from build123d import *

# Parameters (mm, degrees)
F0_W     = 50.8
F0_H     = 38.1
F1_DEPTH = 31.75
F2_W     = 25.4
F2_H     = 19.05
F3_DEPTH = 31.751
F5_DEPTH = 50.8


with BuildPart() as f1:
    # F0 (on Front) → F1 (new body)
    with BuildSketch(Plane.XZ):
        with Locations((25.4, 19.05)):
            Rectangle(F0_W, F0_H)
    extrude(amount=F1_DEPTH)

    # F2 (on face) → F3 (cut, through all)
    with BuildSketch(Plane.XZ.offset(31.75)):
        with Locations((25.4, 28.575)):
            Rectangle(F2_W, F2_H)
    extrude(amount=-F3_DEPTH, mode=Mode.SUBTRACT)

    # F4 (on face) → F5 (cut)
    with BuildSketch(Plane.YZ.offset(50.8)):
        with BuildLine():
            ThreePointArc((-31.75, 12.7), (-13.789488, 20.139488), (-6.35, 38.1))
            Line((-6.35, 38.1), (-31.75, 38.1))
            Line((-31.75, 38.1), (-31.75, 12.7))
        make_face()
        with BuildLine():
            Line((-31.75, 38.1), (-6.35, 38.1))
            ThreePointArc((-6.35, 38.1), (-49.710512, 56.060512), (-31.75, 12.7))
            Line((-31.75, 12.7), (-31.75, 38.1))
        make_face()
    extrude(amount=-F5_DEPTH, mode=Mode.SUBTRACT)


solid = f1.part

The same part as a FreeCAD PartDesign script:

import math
import FreeCAD as App
import Part
import Sketcher

V = App.Vector
Q = App.Units.Quantity


def add_polygon(sketch, points):
    """Adds a closed chain of lines whose ends are joined by coincident constraints."""
    first, n = sketch.GeometryCount, len(points)
    for a, b in zip(points, points[1:] + points[:1]):
        sketch.addGeometry(Part.LineSegment(App.Vector(*a, 0), App.Vector(*b, 0)), False)
    for i in range(n):
        sketch.addConstraint(Sketcher.Constraint("Coincident", first + i, 2, first + (i + 1) % n, 1))

doc = App.newDocument("Part")
body = doc.addObject("PartDesign::Body", "Body")

# Sketch on XZ plane
sketch1 = body.newObject("Sketcher::SketchObject", "Sketch")
sketch1.AttachmentSupport = (doc.getObject("XZ_Plane"), [""])
sketch1.MapMode = "FlatFace"
add_polygon(sketch1, [(0, 38.1), (0, 0), (50.8, 0), (50.8, 38.1)])  # lines 0-3
sketch1.addConstraint([
    Sketcher.Constraint("Vertical", 0),
    Sketcher.Constraint("Horizontal", 1),
    Sketcher.Constraint("Vertical", 2),
    Sketcher.Constraint("Horizontal", 3),
    Sketcher.Constraint("Coincident", 0, 2, -1, 1),
    Sketcher.Constraint("DistanceX", 1, 1, 1, 2, Q("2 in")),
    Sketcher.Constraint("DistanceY", 0, 2, 0, 1, Q("1.5 in")),
])
pad1 = body.newObject("PartDesign::Pad", "Pad")
pad1.Profile = sketch1
pad1.Length = Q("1.25 in")

# Sketch on XZ plane
sketch2 = body.newObject("Sketcher::SketchObject", "Sketch001")
sketch2.AttachmentSupport = (doc.getObject("XZ_Plane"), [""])
sketch2.MapMode = "FlatFace"
sketch2.AttachmentOffset = App.Placement(V(0, 0, 1.25 * 25.4), App.Rotation())
add_polygon(sketch2, [(12.7, 38.1), (12.7, 19.05), (38.1, 19.05), (38.1, 38.1)])  # lines 0-3
sketch2.addConstraint([
    Sketcher.Constraint("Vertical", 0),
    Sketcher.Constraint("Horizontal", 1),
    Sketcher.Constraint("Vertical", 2),
    Sketcher.Constraint("Horizontal", 3),
    Sketcher.Constraint("DistanceX", 1, 1, 1, 2, Q("1 in")),
    Sketcher.Constraint("DistanceY", 0, 2, 0, 1, Q("0.75 in")),
    Sketcher.Constraint("DistanceX", -1, 1, 0, 2, Q("0.5 in")),
    Sketcher.Constraint("DistanceY", -1, 1, 2, 2, Q("1.5 in")),
])
pocket1 = body.newObject("PartDesign::Pocket", "Pocket")
pocket1.Profile = sketch2
pocket1.Type = "ThroughAll"

# Sketch on YZ plane
sketch3 = body.newObject("Sketcher::SketchObject", "Sketch002")
sketch3.AttachmentSupport = (doc.getObject("YZ_Plane"), [""])
sketch3.MapMode = "FlatFace"
sketch3.AttachmentOffset = App.Placement(V(0, 0, 2 * 25.4), App.Rotation())
sketch3.addGeometry([
    Part.ArcOfCircle(Part.Circle(V(-31.750001, 38.100001, 0), V(0, 0, 1), 25.400001), math.radians(-89.999998), math.radians(-0.000002)),
    Part.ArcOfCircle(Part.Circle(V(-31.75, 38.1, 0), V(0, 0, 1), 25.4), math.radians(0), math.radians(270)),
], False)
sketch3.addConstraint([
    Sketcher.Constraint("Tangent", 0, 1, 1, 2),
    Sketcher.Constraint("Coincident", 1, 1, 0, 2),
    Sketcher.Constraint("Horizontal", 0, 3, 1, 1),
    Sketcher.Constraint("Vertical", 1, 3, 0, 1),
    Sketcher.Constraint("Radius", 0, Q("1 in")),
    Sketcher.Constraint("DistanceY", -1, 1, 0, 3, Q("1.5 in")),
    Sketcher.Constraint("DistanceX", 0, 3, -1, 1, Q("1.25 in")),
])
pocket2 = body.newObject("PartDesign::Pocket", "Pocket001")
pocket2.Profile = sketch3
pocket2.Length = Q("2 in")

doc.recompute()
